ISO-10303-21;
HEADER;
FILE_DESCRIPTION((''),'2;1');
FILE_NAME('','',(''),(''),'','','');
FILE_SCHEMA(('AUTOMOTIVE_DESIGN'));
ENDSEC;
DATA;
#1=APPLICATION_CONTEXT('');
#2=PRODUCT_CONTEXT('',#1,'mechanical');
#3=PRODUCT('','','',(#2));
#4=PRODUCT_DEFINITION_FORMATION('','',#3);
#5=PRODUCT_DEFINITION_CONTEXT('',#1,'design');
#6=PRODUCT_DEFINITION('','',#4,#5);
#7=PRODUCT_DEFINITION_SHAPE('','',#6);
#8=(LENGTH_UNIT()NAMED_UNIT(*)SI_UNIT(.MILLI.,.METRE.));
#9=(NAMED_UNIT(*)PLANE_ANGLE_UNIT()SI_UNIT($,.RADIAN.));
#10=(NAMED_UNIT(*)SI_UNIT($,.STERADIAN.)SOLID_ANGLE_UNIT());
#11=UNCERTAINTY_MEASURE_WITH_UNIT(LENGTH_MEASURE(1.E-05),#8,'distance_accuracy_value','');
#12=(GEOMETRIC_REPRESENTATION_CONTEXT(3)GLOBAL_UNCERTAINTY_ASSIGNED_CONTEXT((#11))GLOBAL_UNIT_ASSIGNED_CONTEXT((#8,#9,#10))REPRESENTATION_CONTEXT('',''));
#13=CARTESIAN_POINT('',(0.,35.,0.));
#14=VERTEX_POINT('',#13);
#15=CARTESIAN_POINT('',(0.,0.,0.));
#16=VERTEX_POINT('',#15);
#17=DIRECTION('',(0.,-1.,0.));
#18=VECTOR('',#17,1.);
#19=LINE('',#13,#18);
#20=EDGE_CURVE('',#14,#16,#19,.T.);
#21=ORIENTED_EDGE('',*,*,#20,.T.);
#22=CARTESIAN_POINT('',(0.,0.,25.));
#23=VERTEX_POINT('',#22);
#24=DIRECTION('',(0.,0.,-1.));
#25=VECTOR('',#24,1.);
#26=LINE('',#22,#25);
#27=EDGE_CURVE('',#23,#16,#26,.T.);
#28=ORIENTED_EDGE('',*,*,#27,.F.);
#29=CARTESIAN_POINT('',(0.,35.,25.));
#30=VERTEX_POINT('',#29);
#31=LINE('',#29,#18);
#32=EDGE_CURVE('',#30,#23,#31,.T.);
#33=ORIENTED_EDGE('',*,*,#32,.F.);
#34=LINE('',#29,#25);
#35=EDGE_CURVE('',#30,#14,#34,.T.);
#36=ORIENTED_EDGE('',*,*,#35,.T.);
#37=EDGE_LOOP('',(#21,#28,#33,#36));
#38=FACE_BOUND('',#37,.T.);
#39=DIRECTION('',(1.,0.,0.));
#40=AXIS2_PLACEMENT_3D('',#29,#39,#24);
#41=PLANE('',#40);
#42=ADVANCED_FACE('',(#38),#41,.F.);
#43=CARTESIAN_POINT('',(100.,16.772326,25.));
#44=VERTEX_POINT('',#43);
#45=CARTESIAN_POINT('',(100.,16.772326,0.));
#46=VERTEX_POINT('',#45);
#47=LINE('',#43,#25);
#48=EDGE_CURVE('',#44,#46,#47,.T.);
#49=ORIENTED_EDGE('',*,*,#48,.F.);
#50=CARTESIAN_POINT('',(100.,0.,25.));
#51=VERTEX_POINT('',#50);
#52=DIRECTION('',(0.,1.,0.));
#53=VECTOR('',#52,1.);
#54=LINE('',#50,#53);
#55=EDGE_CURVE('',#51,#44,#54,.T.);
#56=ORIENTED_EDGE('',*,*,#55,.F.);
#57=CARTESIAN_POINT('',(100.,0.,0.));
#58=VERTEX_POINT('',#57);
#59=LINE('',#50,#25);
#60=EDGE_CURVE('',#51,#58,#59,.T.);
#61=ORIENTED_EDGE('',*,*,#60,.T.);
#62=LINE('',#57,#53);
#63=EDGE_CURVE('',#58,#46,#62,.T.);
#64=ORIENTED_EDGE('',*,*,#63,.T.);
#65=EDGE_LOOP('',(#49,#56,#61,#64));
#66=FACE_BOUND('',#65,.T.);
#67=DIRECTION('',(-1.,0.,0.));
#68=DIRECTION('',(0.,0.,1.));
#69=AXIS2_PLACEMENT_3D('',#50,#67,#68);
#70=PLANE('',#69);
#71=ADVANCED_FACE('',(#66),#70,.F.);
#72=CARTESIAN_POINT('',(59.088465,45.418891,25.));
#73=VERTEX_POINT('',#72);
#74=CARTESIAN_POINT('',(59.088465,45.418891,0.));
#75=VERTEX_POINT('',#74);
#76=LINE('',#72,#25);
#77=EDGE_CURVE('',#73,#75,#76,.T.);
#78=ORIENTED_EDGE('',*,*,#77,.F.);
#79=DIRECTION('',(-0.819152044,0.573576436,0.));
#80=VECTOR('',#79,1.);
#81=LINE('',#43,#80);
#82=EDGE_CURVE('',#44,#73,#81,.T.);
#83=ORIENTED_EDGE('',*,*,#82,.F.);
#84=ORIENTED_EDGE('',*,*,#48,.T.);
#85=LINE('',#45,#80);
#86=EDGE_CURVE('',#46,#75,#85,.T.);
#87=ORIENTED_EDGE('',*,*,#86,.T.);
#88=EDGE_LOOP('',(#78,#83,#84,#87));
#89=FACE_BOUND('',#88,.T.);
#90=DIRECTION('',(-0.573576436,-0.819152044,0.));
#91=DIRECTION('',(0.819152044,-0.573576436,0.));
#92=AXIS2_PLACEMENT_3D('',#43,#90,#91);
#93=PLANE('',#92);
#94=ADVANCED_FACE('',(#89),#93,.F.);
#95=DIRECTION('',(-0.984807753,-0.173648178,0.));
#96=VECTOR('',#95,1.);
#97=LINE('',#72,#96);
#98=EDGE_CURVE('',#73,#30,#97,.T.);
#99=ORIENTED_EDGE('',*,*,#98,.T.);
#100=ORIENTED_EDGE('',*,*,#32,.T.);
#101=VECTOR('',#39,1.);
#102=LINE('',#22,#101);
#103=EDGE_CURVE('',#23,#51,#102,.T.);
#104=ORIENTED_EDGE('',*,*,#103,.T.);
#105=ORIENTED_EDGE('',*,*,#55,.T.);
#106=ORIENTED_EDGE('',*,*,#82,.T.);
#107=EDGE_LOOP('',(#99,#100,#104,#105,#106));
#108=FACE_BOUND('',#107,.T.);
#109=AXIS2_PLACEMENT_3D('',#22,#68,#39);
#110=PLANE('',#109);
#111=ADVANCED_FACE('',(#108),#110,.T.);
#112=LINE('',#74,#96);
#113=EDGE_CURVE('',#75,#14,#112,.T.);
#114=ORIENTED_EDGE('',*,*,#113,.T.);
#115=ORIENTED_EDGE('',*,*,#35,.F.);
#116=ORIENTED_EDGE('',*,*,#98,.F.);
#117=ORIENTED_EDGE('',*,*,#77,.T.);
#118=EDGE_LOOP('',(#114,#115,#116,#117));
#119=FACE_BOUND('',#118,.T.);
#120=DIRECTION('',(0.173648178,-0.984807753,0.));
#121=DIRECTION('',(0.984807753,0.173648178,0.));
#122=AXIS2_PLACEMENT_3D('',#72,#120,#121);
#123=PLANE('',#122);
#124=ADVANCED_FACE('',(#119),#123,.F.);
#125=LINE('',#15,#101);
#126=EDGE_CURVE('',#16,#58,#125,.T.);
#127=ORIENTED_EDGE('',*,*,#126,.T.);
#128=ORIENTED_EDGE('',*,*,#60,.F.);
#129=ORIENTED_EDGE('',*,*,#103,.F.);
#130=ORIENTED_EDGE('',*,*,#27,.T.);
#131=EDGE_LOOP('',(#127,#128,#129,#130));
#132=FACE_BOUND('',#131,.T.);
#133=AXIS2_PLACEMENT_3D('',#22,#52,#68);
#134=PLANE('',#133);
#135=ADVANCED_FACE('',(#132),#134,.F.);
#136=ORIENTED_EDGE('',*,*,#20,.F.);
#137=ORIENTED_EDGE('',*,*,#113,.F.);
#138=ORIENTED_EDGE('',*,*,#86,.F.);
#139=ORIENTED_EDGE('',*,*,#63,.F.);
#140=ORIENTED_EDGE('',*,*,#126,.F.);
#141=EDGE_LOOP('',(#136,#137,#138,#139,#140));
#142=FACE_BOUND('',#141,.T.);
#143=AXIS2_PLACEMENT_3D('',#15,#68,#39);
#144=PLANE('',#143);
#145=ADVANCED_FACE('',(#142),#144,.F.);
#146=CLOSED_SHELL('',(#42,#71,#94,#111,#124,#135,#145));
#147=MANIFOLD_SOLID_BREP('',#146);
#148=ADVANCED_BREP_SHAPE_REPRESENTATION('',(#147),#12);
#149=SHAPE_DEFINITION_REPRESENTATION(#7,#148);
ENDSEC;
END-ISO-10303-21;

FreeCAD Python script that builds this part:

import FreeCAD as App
import Part
import Sketcher
from FreeCAD import Vector
Q = App.Units.Quantity


def add_polygon(sketch, points):
    """Adds a closed chain of lines whose ends are joined by coincident constraints."""
    first, n = sketch.GeometryCount, len(points)
    for a, b in zip(points, points[1:] + points[:1]):
        sketch.addGeometry(Part.LineSegment(App.Vector(*a, 0), App.Vector(*b, 0)), False)
    for i in range(n):
        sketch.addConstraint(Sketcher.Constraint("Coincident", first + i, 2, first + (i + 1) % n, 1))

doc = App.newDocument("Part")
params = doc.addObject("Spreadsheet::Sheet", "Params")
for row, (alias, value) in enumerate([
    ("sketch1_width", "100 mm"),
    ("sketch1_height", "35 mm"),
    ("sketch1_length", "60 mm"),
    ("pad1_length", "25 mm"),
], start=1):
    params.set(f"A{row}", alias)
    params.set(f"B{row}", "=" + value)
    params.setAlias(f"B{row}", alias)

body = doc.addObject("PartDesign::Body", "Body")

# Sketch on XY plane
sketch1 = body.newObject("Sketcher::SketchObject", "Sketch")
sketch1.AttachmentSupport = (doc.getObject("XY_Plane"), [""])
sketch1.MapMode = "FlatFace"
add_polygon(sketch1, [(0, 0), (100, 0), (100, 17), (59, 45), (0, 35)])  # lines 0-4
sketch1.addConstraint(Sketcher.Constraint("Horizontal", 0))
sketch1.addConstraint(Sketcher.Constraint("Vertical", 1))
sketch1.addConstraint(Sketcher.Constraint("Vertical", 4))
sketch1.addConstraint(Sketcher.Constraint("Coincident", 4, 2, -1, 1))
sketch1.addConstraint(Sketcher.Constraint("DistanceX", 0, 1, 0, 2, 100.0))
sketch1.addConstraint(Sketcher.Constraint("DistanceY", 4, 2, 4, 1, 35.0))
sketch1.addConstraint(Sketcher.Constraint("Angle", 2, Q("145 deg")))
sketch1.addConstraint(Sketcher.Constraint("Angle", 3, Q("-170 deg")))
sketch1.addConstraint(Sketcher.Constraint("Distance", 3, 60.0))
sketch1.setExpression("Constraints[9]", "Params.sketch1_width")
sketch1.setExpression("Constraints[10]", "Params.sketch1_height")
sketch1.setExpression("Constraints[13]", "Params.sketch1_length")
pad1 = body.newObject("PartDesign::Pad", "Pad")
pad1.Profile = sketch1
pad1.setExpression("Length", "Params.pad1_length")

doc.recompute()
